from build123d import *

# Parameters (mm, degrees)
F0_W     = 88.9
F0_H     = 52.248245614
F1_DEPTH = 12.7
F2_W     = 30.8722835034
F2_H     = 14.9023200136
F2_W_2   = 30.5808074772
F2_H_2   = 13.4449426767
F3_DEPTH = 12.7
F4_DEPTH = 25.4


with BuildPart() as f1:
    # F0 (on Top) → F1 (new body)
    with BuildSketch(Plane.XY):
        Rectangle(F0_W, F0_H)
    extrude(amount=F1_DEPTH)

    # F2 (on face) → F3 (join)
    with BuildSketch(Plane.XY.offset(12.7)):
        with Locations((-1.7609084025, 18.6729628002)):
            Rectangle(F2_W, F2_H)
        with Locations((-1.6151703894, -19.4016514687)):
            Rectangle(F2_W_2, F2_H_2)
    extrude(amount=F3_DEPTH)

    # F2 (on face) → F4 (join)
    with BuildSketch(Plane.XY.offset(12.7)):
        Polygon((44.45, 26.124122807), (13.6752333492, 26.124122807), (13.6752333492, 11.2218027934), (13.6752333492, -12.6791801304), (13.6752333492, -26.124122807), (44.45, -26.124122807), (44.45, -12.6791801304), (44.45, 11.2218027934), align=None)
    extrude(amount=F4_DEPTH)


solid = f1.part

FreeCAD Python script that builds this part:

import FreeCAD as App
import Part
import Sketcher
Q = App.Units.Quantity


def add_polygon(sketch, points):
    """Adds a closed chain of lines whose ends are joined by coincident constraints."""
    first, n = sketch.GeometryCount, len(points)
    for a, b in zip(points, points[1:] + points[:1]):
        sketch.addGeometry(Part.LineSegment(App.Vector(*a, 0), App.Vector(*b, 0)), False)
    for i in range(n):
        sketch.addConstraint(Sketcher.Constraint("Coincident", first + i, 2, first + (i + 1) % n, 1))

doc = App.newDocument("Part")
params = doc.addObject("Spreadsheet::Sheet", "Params")
for row, (alias, value) in enumerate([
    ("sketch1_width", "3.5 in"),
    ("pad1_length", "0.5 in"),
    ("pad2_length", "0.5 in"),
    ("pad3_length", "1 in"),
], start=1):
    params.set(f"A{row}", alias)
    params.set(f"B{row}", "=" + value)
    params.setAlias(f"B{row}", alias)

body = doc.addObject("PartDesign::Body", "Body")

# Sketch on XY plane
sketch1 = body.newObject("Sketcher::SketchObject", "Sketch")
sketch1.AttachmentSupport = (doc.getObject("XY_Plane"), [""])
sketch1.MapMode = "FlatFace"
add_polygon(sketch1, [(-44.45, 26.124123), (-44.45, -26.124123), (44.45, -26.124123), (44.45, 26.124123)])  # lines 0-3
sketch1.addConstraint([
    Sketcher.Constraint("Vertical", 0),
    Sketcher.Constraint("Horizontal", 1),
    Sketcher.Constraint("Vertical", 2),
    Sketcher.Constraint("Horizontal", 3),
    Sketcher.Constraint("Symmetric", 0, 2, 2, 2, -1, 1),
    Sketcher.Constraint("DistanceX", 1, 1, 1, 2, Q("3.5 in")),
    Sketcher.Constraint("DistanceY", 0, 2, 0, 1, 52.248246),
])
sketch1.setExpression("Constraints[9]", "Params.sketch1_width")
pad1 = body.newObject("PartDesign::Pad", "Pad")
pad1.Profile = sketch1
pad1.setExpression("Length", "Params.pad1_length")

# Sketch on XY plane
sketch2 = body.newObject("Sketcher::SketchObject", "Sketch001")
sketch2.AttachmentSupport = (doc.getObject("XY_Plane"), [""])
sketch2.MapMode = "FlatFace"
sketch2.AttachmentOffset = App.Placement(App.Vector(0, 0, 0.5 * 25.4), App.Rotation())
add_polygon(sketch2, [(-17.19705, 26.124123), (-17.19705, 11.221803), (13.675233, 11.221803), (13.675233, 26.124123)])  # lines 0-3
add_polygon(sketch2, [(-16.905574, -12.67918), (-16.905574, -26.124123), (13.675233, -26.124123), (13.675233, -12.67918)])  # lines 4-7
sketch2.addConstraint([
    Sketcher.Constraint("Vertical", 0),
    Sketcher.Constraint("Horizontal", 1),
    Sketcher.Constraint("Vertical", 2),
    Sketcher.Constraint("Horizontal", 3),
    Sketcher.Constraint("Vertical", 4),
    Sketcher.Constraint("Horizontal", 5),
    Sketcher.Constraint("Vertical", 6),
    Sketcher.Constraint("Horizontal", 7),
    Sketcher.Constraint("Symmetric", 2, 2, 5, 2, -1),
    Sketcher.Constraint("DistanceY", 0, 2, 0, 1, 14.90232),
    Sketcher.Constraint("DistanceX", 1, 1, 1, 2, 30.872284),
    Sketcher.Constraint("DistanceX", 5, 1, 5, 2, 30.580807),
    Sketcher.Constraint("DistanceY", 4, 2, 4, 1, 13.444943),
    Sketcher.Constraint("DistanceX", 0, 2, -1, 1, 17.19705),
    Sketcher.Constraint("DistanceY", 6, 2, -1, 1, 12.67918),
])
pad2 = body.newObject("PartDesign::Pad", "Pad001")
pad2.Profile = sketch2
pad2.setExpression("Length", "Params.pad2_length")

# Sketch on XY plane
sketch3 = body.newObject("Sketcher::SketchObject", "Sketch002")
sketch3.AttachmentSupport = (doc.getObject("XY_Plane"), [""])
sketch3.MapMode = "FlatFace"
sketch3.AttachmentOffset = App.Placement(App.Vector(0, 0, 0.5 * 25.4), App.Rotation())
add_polygon(sketch3, [(44.45, 26.124123), (13.675233, 26.124123), (13.675233, -26.124123), (44.45, -26.124123)])  # lines 0-3
sketch3.addConstraint([
    Sketcher.Constraint("Horizontal", 0),
    Sketcher.Constraint("Vertical", 1),
    Sketcher.Constraint("Horizontal", 2),
    Sketcher.Constraint("Vertical", 3),
    Sketcher.Constraint("DistanceX", -1, 1, 2, 2, Q("1.75 in")),
    Sketcher.Constraint("DistanceX", 0, 2, 0, 1, 30.774767),
    Sketcher.Constraint("DistanceY", 1, 2, 1, 1, 52.248246),
    Sketcher.Constraint("DistanceY", -1, 1, 0, 2, 26.124123),
])
pad3 = body.newObject("PartDesign::Pad", "Pad002")
pad3.Profile = sketch3
pad3.setExpression("Length", "Params.pad3_length")

doc.recompute()
